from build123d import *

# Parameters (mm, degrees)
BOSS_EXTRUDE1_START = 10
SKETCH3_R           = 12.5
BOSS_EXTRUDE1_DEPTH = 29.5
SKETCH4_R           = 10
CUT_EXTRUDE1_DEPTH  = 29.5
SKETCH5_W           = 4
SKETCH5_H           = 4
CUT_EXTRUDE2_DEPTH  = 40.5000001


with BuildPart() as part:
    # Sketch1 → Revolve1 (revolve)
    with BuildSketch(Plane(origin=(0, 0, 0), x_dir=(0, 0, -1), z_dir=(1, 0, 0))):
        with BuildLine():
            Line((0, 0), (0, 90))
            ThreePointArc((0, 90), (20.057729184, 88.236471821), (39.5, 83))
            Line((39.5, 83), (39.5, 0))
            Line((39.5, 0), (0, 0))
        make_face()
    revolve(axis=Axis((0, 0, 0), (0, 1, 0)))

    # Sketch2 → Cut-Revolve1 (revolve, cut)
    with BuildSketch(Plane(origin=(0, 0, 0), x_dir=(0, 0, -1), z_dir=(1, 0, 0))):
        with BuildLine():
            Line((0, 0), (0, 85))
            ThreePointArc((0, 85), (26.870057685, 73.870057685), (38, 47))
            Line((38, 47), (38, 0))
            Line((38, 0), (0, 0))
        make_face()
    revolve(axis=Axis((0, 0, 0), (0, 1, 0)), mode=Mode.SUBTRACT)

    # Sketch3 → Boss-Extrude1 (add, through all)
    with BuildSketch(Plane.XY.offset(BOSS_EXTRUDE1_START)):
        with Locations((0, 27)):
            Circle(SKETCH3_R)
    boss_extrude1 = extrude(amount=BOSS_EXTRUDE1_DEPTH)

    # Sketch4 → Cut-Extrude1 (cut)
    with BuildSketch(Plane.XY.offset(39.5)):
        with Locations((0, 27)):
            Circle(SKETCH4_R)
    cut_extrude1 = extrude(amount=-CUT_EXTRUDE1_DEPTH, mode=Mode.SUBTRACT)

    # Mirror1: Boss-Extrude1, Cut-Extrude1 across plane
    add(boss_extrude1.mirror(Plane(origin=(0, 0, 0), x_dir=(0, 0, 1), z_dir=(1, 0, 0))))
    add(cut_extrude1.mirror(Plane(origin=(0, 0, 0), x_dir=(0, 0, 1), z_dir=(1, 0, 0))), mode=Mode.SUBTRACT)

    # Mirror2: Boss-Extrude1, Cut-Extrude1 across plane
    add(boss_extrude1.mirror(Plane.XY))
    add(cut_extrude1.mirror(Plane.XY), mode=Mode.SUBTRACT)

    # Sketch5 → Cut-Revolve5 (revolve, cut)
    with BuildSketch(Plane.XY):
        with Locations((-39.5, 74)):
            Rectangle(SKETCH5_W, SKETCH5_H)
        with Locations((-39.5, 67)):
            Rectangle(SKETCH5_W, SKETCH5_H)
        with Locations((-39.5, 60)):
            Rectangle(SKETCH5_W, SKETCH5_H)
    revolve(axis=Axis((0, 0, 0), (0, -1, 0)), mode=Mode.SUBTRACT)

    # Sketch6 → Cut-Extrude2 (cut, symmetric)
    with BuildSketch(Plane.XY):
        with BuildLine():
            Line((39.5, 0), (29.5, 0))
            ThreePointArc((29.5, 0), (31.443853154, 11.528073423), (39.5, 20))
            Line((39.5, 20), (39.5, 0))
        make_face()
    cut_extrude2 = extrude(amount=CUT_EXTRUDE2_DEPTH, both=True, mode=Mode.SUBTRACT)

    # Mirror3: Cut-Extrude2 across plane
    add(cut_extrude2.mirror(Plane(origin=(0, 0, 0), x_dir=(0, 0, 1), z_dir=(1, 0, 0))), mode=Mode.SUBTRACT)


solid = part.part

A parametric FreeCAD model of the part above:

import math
import FreeCAD as App
import Part
import Sketcher

V = App.Vector
Q = App.Units.Quantity


def add_polygon(sketch, points):
    """Adds a closed chain of lines whose ends are joined by coincident constraints."""
    first, n = sketch.GeometryCount, len(points)
    for a, b in zip(points, points[1:] + points[:1]):
        sketch.addGeometry(Part.LineSegment(App.Vector(*a, 0), App.Vector(*b, 0)), False)
    for i in range(n):
        sketch.addConstraint(Sketcher.Constraint("Coincident", first + i, 2, first + (i + 1) % n, 1))

doc = App.newDocument("Part")
body = doc.addObject("PartDesign::Body", "Body")

# Sketch on YZ plane
sketch1 = doc.addObject("Sketcher::SketchObject", "Sketch")
body.addObject(sketch1)
sketch1.AttachmentSupport = (doc.YZ_Plane, [""])
sketch1.MapMode = "FlatFace"
sketch1.addGeometry([
    Part.LineSegment(V(90, 0, 0), V(0, 0, 0)),
    Part.LineSegment(V(0, 0, 0), V(0, -39.5, 0)),
    Part.LineSegment(V(0, -39.5, 0), V(83, -39.5, 0)),
    Part.ArcOfCircle(Part.Circle(V(-24.946429, 0, 0), V(0, 0, 1), 114.946429), math.radians(-20.098697), math.radians(0)),
], False)
sketch1.addConstraint([
    Sketcher.Constraint("Coincident", 0, 2, 1, 1),
    Sketcher.Constraint("Coincident", 1, 2, 2, 1),
    Sketcher.Constraint("Coincident", 2, 2, 3, 1),
    Sketcher.Constraint("Coincident", 3, 2, 0, 1),
    Sketcher.Constraint("Horizontal", 0),
    Sketcher.Constraint("Vertical", 1),
    Sketcher.Constraint("Horizontal", 2),
    Sketcher.Constraint("Coincident", 0, 2, -1, 1),
    Sketcher.Constraint("PointOnObject", 3, 3, -1),
    Sketcher.Constraint("DistanceX", 0, 2, 0, 1, Q("90 mm")),
    Sketcher.Constraint("DistanceX", 2, 1, 2, 2, Q("83 mm")),
    Sketcher.Constraint("DistanceY", 1, 2, 1, 1, Q("39.5 mm")),
])
revolution = doc.addObject("PartDesign::Revolution", "Revolution")
body.addObject(revolution)
revolution.Profile = sketch1
revolution.ReferenceAxis = (sketch1, ["H_Axis"])
revolution.Angle = 360

# Sketch on YZ plane
sketch2 = doc.addObject("Sketcher::SketchObject", "Sketch001")
body.addObject(sketch2)
sketch2.AttachmentSupport = (doc.YZ_Plane, [""])
sketch2.MapMode = "FlatFace"
sketch2.addGeometry([
    Part.LineSegment(V(85, 0, 0), V(0, 0, 0)),
    Part.LineSegment(V(0, 0, 0), V(0, -38, 0)),
    Part.LineSegment(V(0, -38, 0), V(47, -38, 0)),
    Part.ArcOfCircle(Part.Circle(V(47, 0, 0), V(0, 0, 1), 38), math.radians(-90), math.radians(0)),
], False)
sketch2.addConstraint([
    Sketcher.Constraint("Coincident", 0, 2, 1, 1),
    Sketcher.Constraint("Coincident", 1, 2, 2, 1),
    Sketcher.Constraint("Tangent", 2, 2, 3, 1),
    Sketcher.Constraint("Coincident", 3, 2, 0, 1),
    Sketcher.Constraint("Horizontal", 0),
    Sketcher.Constraint("Vertical", 1),
    Sketcher.Constraint("Horizontal", 2),
    Sketcher.Constraint("Coincident", 0, 2, -1, 1),
    Sketcher.Constraint("PointOnObject", 3, 3, -1),
    Sketcher.Constraint("Radius", 3, Q("38 mm")),
    Sketcher.Constraint("DistanceX", 0, 2, 0, 1, Q("85 mm")),
])
groove = doc.addObject("PartDesign::Groove", "Groove")
body.addObject(groove)
groove.Profile = sketch2
groove.ReferenceAxis = (sketch2, ["H_Axis"])
groove.Angle = 360

# Sketch on XY plane
sketch3 = doc.addObject("Sketcher::SketchObject", "Sketch002")
body.addObject(sketch3)
sketch3.AttachmentSupport = (doc.XY_Plane, [""])
sketch3.MapMode = "FlatFace"
sketch3.AttachmentOffset = App.Placement(V(0, 0, 10), App.Rotation())
sketch3.addGeometry(Part.Circle(V(0, 27, 0), V(0, 0, 1), 12.5), False)
sketch3.addConstraint([
    Sketcher.Constraint("PointOnObject", 0, 3, -2),
    Sketcher.Constraint("Diameter", 0, Q("25 mm")),
    Sketcher.Constraint("DistanceY", -1, 1, 0, 3, Q("27 mm")),
])
pad1 = doc.addObject("PartDesign::Pad", "Pad")
body.addObject(pad1)
pad1.Profile = sketch3
pad1.Length = 29.5

# Sketch on XY plane
sketch4 = doc.addObject("Sketcher::SketchObject", "Sketch003")
body.addObject(sketch4)
sketch4.AttachmentSupport = (doc.XY_Plane, [""])
sketch4.MapMode = "FlatFace"
sketch4.AttachmentOffset = App.Placement(V(0, 0, 39.5), App.Rotation())
sketch4.addGeometry(Part.Circle(V(0, 27, 0), V(0, 0, 1), 10), False)
sketch4.addConstraint([
    Sketcher.Constraint("PointOnObject", 0, 3, -2),
    Sketcher.Constraint("Diameter", 0, Q("20 mm")),
    Sketcher.Constraint("DistanceY", -1, 1, 0, 3, Q("27 mm")),
])
pocket1 = doc.addObject("PartDesign::Pocket", "Pocket")
body.addObject(pocket1)
pocket1.Profile = sketch4
pocket1.Length = 29.5
doc.recompute()

mirrored = doc.addObject("PartDesign::Mirrored", "Mirrored")
body.addObject(mirrored)
mirrored.Originals = [pad1, pocket1]
mirrored.MirrorPlane = (doc.YZ_Plane, [""])
body.Tip = mirrored
doc.recompute()

mirrored2 = doc.addObject("PartDesign::Mirrored", "Mirrored001")
body.addObject(mirrored2)
mirrored2.Originals = [pad1, pocket1]
mirrored2.MirrorPlane = (doc.XY_Plane, [""])
body.Tip = mirrored2

# Sketch on XY plane
sketch5 = doc.addObject("Sketcher::SketchObject", "Sketch004")
body.addObject(sketch5)
sketch5.AttachmentSupport = (doc.XY_Plane, [""])
sketch5.MapMode = "FlatFace"
add_polygon(sketch5, [(-41.5, 76), (-41.5, 72), (-37.5, 72), (-37.5, 76)])  # lines 0-3
add_polygon(sketch5, [(-41.5, 69), (-41.5, 65), (-37.5, 65), (-37.5, 69)])  # lines 4-7
add_polygon(sketch5, [(-41.5, 62), (-41.5, 58), (-37.5, 58), (-37.5, 62)])  # lines 8-11
sketch5.addConstraint([
    Sketcher.Constraint("Vertical", 0),
    Sketcher.Constraint("Horizontal", 1),
    Sketcher.Constraint("Vertical", 2),
    Sketcher.Constraint("Horizontal", 3),
    Sketcher.Constraint("Vertical", 4),
    Sketcher.Constraint("Horizontal", 5),
    Sketcher.Constraint("Vertical", 6),
    Sketcher.Constraint("Horizontal", 7),
    Sketcher.Constraint("Vertical", 8),
    Sketcher.Constraint("Horizontal", 9),
    Sketcher.Constraint("Vertical", 10),
    Sketcher.Constraint("Horizontal", 11),
    Sketcher.Constraint("Vertical", 3, 2, 4, 2),
    Sketcher.Constraint("Vertical", 2, 2, 5, 2),
    Sketcher.Constraint("Vertical", 7, 2, 8, 2),
    Sketcher.Constraint("Vertical", 6, 2, 9, 2),
    Sketcher.Constraint("Equal", 11, 0),
    Sketcher.Constraint("Equal", 2, 4),
    Sketcher.Constraint("Equal", 6, 8),
    Sketcher.Constraint("DistanceX", 1, 1, 1, 2, Q("4 mm")),
    Sketcher.Constraint("DistanceY", -1, 1, 0, 2, Q("72 mm")),
    Sketcher.Constraint("DistanceY", -1, 1, 4, 2, Q("65 mm")),
    Sketcher.Constraint("DistanceY", -1, 1, 8, 2, Q("58 mm")),
    Sketcher.Constraint("DistanceX", 0, 2, -1, 1, Q("41.5 mm")),
])
groove2 = doc.addObject("PartDesign::Groove", "Groove001")
body.addObject(groove2)
groove2.Profile = sketch5
groove2.ReferenceAxis = (sketch5, ["V_Axis"])
groove2.Angle = 360

# Sketch on XY plane
sketch6 = doc.addObject("Sketcher::SketchObject", "Sketch005")
body.addObject(sketch6)
sketch6.AttachmentSupport = (doc.XY_Plane, [""])
sketch6.MapMode = "FlatFace"
sketch6.addGeometry([
    Part.LineSegment(V(29.5, 0, 0), V(39.5, 0, 0)),
    Part.LineSegment(V(39.5, 0, 0), V(39.5, 20, 0)),
    Part.ArcOfCircle(Part.Circle(V(49.332397, 2.583802, 0), V(0, 0, 1), 20), math.radians(119.447105), math.radians(187.422792)),
], False)
sketch6.addConstraint([
    Sketcher.Constraint("Coincident", 0, 2, 1, 1),
    Sketcher.Constraint("Coincident", 1, 2, 2, 1),
    Sketcher.Constraint("Coincident", 2, 2, 0, 1),
    Sketcher.Constraint("Horizontal", 0),
    Sketcher.Constraint("Vertical", 1),
    Sketcher.Constraint("PointOnObject", 0, 2, -1),
    Sketcher.Constraint("Radius", 2, Q("20 mm")),
    Sketcher.Constraint("DistanceX", 0, 1, 0, 2, Q("10 mm")),
    Sketcher.Constraint("DistanceY", 1, 1, 1, 2, Q("20 mm")),
    Sketcher.Constraint("DistanceX", -1, 1, 0, 2, Q("39.5 mm")),
])
pocket2 = doc.addObject("PartDesign::Pocket", "Pocket001")
body.addObject(pocket2)
pocket2.Profile = sketch6
pocket2.Length = 81
pocket2.Midplane = True
doc.recompute()

mirrored3 = doc.addObject("PartDesign::Mirrored", "Mirrored002")
body.addObject(mirrored3)
mirrored3.Originals = [pocket2]
mirrored3.MirrorPlane = (doc.YZ_Plane, [""])
body.Tip = mirrored3

doc.recompute()
